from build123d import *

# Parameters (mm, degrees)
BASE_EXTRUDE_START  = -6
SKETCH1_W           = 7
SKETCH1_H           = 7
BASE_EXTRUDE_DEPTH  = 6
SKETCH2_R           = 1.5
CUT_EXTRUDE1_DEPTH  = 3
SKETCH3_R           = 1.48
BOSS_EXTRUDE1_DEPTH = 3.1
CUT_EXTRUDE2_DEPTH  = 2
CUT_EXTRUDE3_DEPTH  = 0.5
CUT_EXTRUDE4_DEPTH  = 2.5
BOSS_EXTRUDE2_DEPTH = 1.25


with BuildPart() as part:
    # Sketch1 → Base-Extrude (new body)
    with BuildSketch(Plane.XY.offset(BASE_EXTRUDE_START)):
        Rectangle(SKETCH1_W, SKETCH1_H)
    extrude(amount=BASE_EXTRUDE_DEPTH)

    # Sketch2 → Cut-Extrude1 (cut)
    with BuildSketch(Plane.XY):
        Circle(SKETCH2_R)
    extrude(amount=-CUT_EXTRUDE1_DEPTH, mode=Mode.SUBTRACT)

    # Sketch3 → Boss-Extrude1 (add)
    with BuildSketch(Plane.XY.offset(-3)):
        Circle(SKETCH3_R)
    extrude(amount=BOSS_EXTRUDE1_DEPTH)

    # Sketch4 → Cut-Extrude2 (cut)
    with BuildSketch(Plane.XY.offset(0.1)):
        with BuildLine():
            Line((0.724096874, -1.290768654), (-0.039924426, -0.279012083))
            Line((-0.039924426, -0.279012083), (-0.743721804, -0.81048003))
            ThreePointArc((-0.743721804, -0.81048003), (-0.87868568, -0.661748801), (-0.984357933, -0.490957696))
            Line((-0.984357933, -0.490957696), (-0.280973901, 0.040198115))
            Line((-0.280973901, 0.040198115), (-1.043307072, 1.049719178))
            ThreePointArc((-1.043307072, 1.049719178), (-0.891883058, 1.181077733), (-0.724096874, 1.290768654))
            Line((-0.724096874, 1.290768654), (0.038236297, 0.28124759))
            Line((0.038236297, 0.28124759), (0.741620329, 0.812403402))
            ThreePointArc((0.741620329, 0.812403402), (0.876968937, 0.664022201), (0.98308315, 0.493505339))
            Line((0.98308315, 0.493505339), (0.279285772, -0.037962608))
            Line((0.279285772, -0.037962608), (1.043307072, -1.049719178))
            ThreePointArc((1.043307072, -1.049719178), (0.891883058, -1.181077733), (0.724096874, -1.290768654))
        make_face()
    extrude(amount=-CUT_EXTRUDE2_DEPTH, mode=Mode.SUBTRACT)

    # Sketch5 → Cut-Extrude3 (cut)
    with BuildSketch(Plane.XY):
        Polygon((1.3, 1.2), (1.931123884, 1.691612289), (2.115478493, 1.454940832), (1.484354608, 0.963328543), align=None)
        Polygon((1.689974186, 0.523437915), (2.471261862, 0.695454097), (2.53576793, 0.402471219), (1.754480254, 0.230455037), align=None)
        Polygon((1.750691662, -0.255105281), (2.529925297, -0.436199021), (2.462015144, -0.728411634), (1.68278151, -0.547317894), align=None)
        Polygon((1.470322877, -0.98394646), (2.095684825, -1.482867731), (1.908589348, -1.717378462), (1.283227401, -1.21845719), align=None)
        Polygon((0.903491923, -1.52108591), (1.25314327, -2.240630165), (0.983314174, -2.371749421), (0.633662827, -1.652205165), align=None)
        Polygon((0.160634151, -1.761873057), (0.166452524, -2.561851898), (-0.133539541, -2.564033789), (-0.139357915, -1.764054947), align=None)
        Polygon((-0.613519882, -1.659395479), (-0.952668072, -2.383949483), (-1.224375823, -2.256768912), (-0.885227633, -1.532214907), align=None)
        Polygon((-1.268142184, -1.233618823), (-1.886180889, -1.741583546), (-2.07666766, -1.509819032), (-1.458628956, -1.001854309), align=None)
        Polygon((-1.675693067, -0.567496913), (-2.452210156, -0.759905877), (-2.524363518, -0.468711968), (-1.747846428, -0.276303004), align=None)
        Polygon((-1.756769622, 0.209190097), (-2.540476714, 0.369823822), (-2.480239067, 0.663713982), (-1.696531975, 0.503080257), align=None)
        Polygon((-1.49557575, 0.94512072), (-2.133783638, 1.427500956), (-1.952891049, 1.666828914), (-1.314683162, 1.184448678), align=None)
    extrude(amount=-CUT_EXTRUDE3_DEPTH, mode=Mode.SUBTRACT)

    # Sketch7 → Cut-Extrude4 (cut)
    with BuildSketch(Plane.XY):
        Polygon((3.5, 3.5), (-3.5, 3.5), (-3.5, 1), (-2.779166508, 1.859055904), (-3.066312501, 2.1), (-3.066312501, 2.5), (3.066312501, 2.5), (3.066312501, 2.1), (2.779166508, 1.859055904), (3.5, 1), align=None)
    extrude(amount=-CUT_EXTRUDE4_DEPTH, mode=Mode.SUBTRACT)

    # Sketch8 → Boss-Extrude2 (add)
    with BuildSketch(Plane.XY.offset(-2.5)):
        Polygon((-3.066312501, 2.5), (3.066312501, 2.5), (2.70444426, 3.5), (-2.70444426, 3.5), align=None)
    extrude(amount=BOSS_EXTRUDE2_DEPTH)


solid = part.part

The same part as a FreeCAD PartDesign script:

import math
import FreeCAD as App
import Part
import Sketcher
Q = App.Units.Quantity

doc = App.newDocument("Part")
body = doc.addObject("PartDesign::Body", "Body")

# Sketch on XY plane
sketch1 = body.newObject("Sketcher::SketchObject", "Sketch")
sketch1.AttachmentSupport = (doc.getObject("XY_Plane"), [""])
sketch1.MapMode = "FlatFace"
sketch1.AttachmentOffset = App.Placement(App.Vector(0, 0, -6), App.Rotation())
sketch1.addGeometry([
    Part.LineSegment(App.Vector(-4, 4, 0), App.Vector(-4, -4, 0)),
    Part.LineSegment(App.Vector(-4, -4, 0), App.Vector(4, -4, 0)),
    Part.LineSegment(App.Vector(4, -4, 0), App.Vector(4, 4, 0)),
    Part.LineSegment(App.Vector(4, 4, 0), App.Vector(-4, 4, 0)),
], False)
sketch1.addConstraint([
    Sketcher.Constraint("Coincident", 0, 2, 1, 1),
    Sketcher.Constraint("Coincident", 1, 2, 2, 1),
    Sketcher.Constraint("Coincident", 2, 2, 3, 1),
    Sketcher.Constraint("Coincident", 3, 2, 0, 1),
    Sketcher.Constraint("Vertical", 0),
    Sketcher.Constraint("Horizontal", 1),
    Sketcher.Constraint("Vertical", 2),
    Sketcher.Constraint("Horizontal", 3),
    Sketcher.Constraint("Symmetric", 0, 2, 2, 2, -1, 1),
    Sketcher.Constraint("Equal", 3, 0),
    Sketcher.Constraint("DistanceX", 1, 1, 1, 2, 7.0),
])
pad1 = body.newObject("PartDesign::Pad", "Pad")
pad1.Profile = sketch1
pad1.Length = 6

# Sketch on XY plane
sketch2 = body.newObject("Sketcher::SketchObject", "Sketch001")
sketch2.AttachmentSupport = (doc.getObject("XY_Plane"), [""])
sketch2.MapMode = "FlatFace"
sketch2.addGeometry(Part.Circle(App.Vector(0, 0, 0), App.Vector(0, 0, 1), 1.5), False)
sketch2.addConstraint([
    Sketcher.Constraint("Coincident", 0, 3, -1, 1),
    Sketcher.Constraint("Diameter", 0, 3.0),
])
pocket1 = body.newObject("PartDesign::Pocket", "Pocket")
pocket1.Profile = sketch2
pocket1.Length = 3

# Sketch on XY plane
sketch3 = body.newObject("Sketcher::SketchObject", "Sketch002")
sketch3.AttachmentSupport = (doc.getObject("XY_Plane"), [""])
sketch3.MapMode = "FlatFace"
sketch3.AttachmentOffset = App.Placement(App.Vector(0, 0, -3), App.Rotation())
sketch3.addGeometry(Part.Circle(App.Vector(0, 0, 0), App.Vector(0, 0, 1), 1.5), False)
sketch3.addConstraint([
    Sketcher.Constraint("Coincident", 0, 3, -1, 1),
    Sketcher.Constraint("Diameter", 0, 2.96),
])
pad2 = body.newObject("PartDesign::Pad", "Pad001")
pad2.Profile = sketch3
pad2.Length = 3.1

# Sketch on XY plane
sketch4 = body.newObject("Sketcher::SketchObject", "Sketch003")
sketch4.AttachmentSupport = (doc.getObject("XY_Plane"), [""])
sketch4.MapMode = "FlatFace"
sketch4.AttachmentOffset = App.Placement(App.Vector(0, 0, 0.1), App.Rotation())
sketch4.addGeometry([
    Part.LineSegment(App.Vector(-0.04, -0.28, 0), App.Vector(0.72, -1.29, 0)),  # 0
    Part.ArcOfCircle(Part.Circle(App.Vector(0, 0, 0), App.Vector(0, 0, 1), 1.48), math.radians(-60.71), math.radians(-45.18)),  # 1
    Part.LineSegment(App.Vector(1.04, -1.05, 0), App.Vector(0.28, -0.04, 0)),  # 2
    Part.LineSegment(App.Vector(0.28, -0.04, 0), App.Vector(0.98, 0.49, 0)),  # 3
    Part.ArcOfCircle(Part.Circle(App.Vector(0, 0, 0), App.Vector(0, 0, 1), 1.1), math.radians(27), math.radians(48)),  # 4
    Part.LineSegment(App.Vector(0.74, 0.81, 0), App.Vector(0.04, 0.28, 0)),  # 5
    Part.LineSegment(App.Vector(0.04, 0.28, 0), App.Vector(-0.72, 1.29, 0)),  # 6
    Part.ArcOfCircle(Part.Circle(App.Vector(0, 0, 0), App.Vector(0, 0, 1), 1.48), math.radians(119.29), math.radians(134.82)),  # 7
    Part.LineSegment(App.Vector(-1.04, 1.05, 0), App.Vector(-0.28, 0.04, 0)),  # 8
    Part.LineSegment(App.Vector(-0.28, 0.04, 0), App.Vector(-0.98, -0.49, 0)),  # 9
    Part.ArcOfCircle(Part.Circle(App.Vector(0, 0, 0), App.Vector(0, 0, 1), 1.1), math.radians(-153), math.radians(-133)),  # 10
    Part.LineSegment(App.Vector(-0.74, -0.81, 0), App.Vector(-0.04, -0.28, 0)),  # 11
], False)
sketch4.addConstraint([
    Sketcher.Constraint("Coincident", 0, 2, 1, 1),
    Sketcher.Constraint("Coincident", 1, 2, 2, 1),
    Sketcher.Constraint("Coincident", 2, 2, 3, 1),
    Sketcher.Constraint("Coincident", 3, 2, 4, 1),
    Sketcher.Constraint("Coincident", 4, 2, 5, 1),
    Sketcher.Constraint("Coincident", 5, 2, 6, 1),
    Sketcher.Constraint("Coincident", 6, 2, 7, 1),
    Sketcher.Constraint("Coincident", 7, 2, 8, 1),
    Sketcher.Constraint("Coincident", 8, 2, 9, 1),
    Sketcher.Constraint("Coincident", 9, 2, 10, 1),
    Sketcher.Constraint("Coincident", 10, 2, 11, 1),
    Sketcher.Constraint("Coincident", 11, 2, 0, 1),
    Sketcher.Constraint("Coincident", 1, 3, -1, 1),
    Sketcher.Constraint("Coincident", 4, 3, -1, 1),
    Sketcher.Constraint("Coincident", 7, 3, -1, 1),
    Sketcher.Constraint("Coincident", 10, 3, -1, 1),
    Sketcher.Constraint("Equal", 1, 7),
    Sketcher.Constraint("Equal", 4, 10),
    Sketcher.Constraint("Parallel", 0, 2),
    Sketcher.Constraint("Perpendicular", 2, 3),
    Sketcher.Constraint("Parallel", 3, 5),
    Sketcher.Constraint("Perpendicular", 5, 6),
    Sketcher.Constraint("Parallel", 6, 8),
    Sketcher.Constraint("Perpendicular", 8, 9),
    Sketcher.Constraint("Parallel", 9, 11),
    Sketcher.Constraint("Equal", 0, 2),
    Sketcher.Constraint("Equal", 6, 8),
    Sketcher.Constraint("Equal", 5, 9),
    Sketcher.Constraint("Equal", 3, 11),
    Sketcher.Constraint("Radius", 4, 1.1),
    Sketcher.Constraint("Radius", 1, 1.48),
    Sketcher.Constraint("DistanceY", -1, 1, 8, 2, 0.040198),
    Sketcher.Constraint("DistanceY", 3, 2, 4, 2, 0.318898),
    Sketcher.Constraint("DistanceY", 0, 2, -1, 1, 1.290769),
    Sketcher.Constraint("DistanceY", 1, 2, -1, 1, 1.049719),
    Sketcher.Constraint("DistanceX", -1, 1, 4, 2, 0.74162),
])
pocket2 = body.newObject("PartDesign::Pocket", "Pocket001")
pocket2.Profile = sketch4
pocket2.Length = 2

# Sketch on XY plane
sketch5 = body.newObject("Sketcher::SketchObject", "Sketch004")
sketch5.AttachmentSupport = (doc.getObject("XY_Plane"), [""])
sketch5.MapMode = "FlatFace"
sketch5.addGeometry([
    Part.LineSegment(App.Vector(1.93, 1.69, 0), App.Vector(1.3, 1.2, 0)),  # 0
    Part.LineSegment(App.Vector(1.3, 1.2, 0), App.Vector(1.48, 0.96, 0)),  # 1
    Part.LineSegment(App.Vector(1.48, 0.96, 0), App.Vector(2.12, 1.45, 0)),  # 2
    Part.LineSegment(App.Vector(2.12, 1.45, 0), App.Vector(1.93, 1.69, 0)),  # 3
    Part.LineSegment(App.Vector(2.47, 0.7, 0), App.Vector(1.69, 0.52, 0)),  # 4
    Part.LineSegment(App.Vector(1.69, 0.52, 0), App.Vector(1.75, 0.23, 0)),  # 5
    Part.LineSegment(App.Vector(1.75, 0.23, 0), App.Vector(2.54, 0.4, 0)),  # 6
    Part.LineSegment(App.Vector(2.54, 0.4, 0), App.Vector(2.47, 0.7, 0)),  # 7
    Part.LineSegment(App.Vector(2.53, -0.44, 0), App.Vector(1.75, -0.26, 0)),  # 8
    Part.LineSegment(App.Vector(1.75, -0.26, 0), App.Vector(1.68, -0.55, 0)),  # 9
    Part.LineSegment(App.Vector(1.68, -0.55, 0), App.Vector(2.46, -0.73, 0)),  # 10
    Part.LineSegment(App.Vector(2.46, -0.73, 0), App.Vector(2.53, -0.44, 0)),  # 11
    Part.LineSegment(App.Vector(2.1, -1.48, 0), App.Vector(1.47, -0.98, 0)),  # 12
    Part.LineSegment(App.Vector(1.47, -0.98, 0), App.Vector(1.28, -1.22, 0)),  # 13
    Part.LineSegment(App.Vector(1.28, -1.22, 0), App.Vector(1.91, -1.72, 0)),  # 14
    Part.LineSegment(App.Vector(1.91, -1.72, 0), App.Vector(2.1, -1.48, 0)),  # 15
    Part.LineSegment(App.Vector(1.25, -2.24, 0), App.Vector(0.9, -1.52, 0)),  # 16
    Part.LineSegment(App.Vector(0.9, -1.52, 0), App.Vector(0.63, -1.65, 0)),  # 17
    Part.LineSegment(App.Vector(0.63, -1.65, 0), App.Vector(0.98, -2.37, 0)),  # 18
    Part.LineSegment(App.Vector(0.98, -2.37, 0), App.Vector(1.25, -2.24, 0)),  # 19
    Part.LineSegment(App.Vector(0.17, -2.56, 0), App.Vector(0.16, -1.76, 0)),  # 20
    Part.LineSegment(App.Vector(0.16, -1.76, 0), App.Vector(-0.14, -1.76, 0)),  # 21
    Part.LineSegment(App.Vector(-0.14, -1.76, 0), App.Vector(-0.13, -2.56, 0)),  # 22
    Part.LineSegment(App.Vector(-0.13, -2.56, 0), App.Vector(0.17, -2.56, 0)),  # 23
    Part.LineSegment(App.Vector(-0.95, -2.38, 0), App.Vector(-0.61, -1.66, 0)),  # 24
    Part.LineSegment(App.Vector(-0.61, -1.66, 0), App.Vector(-0.89, -1.53, 0)),  # 25
    Part.LineSegment(App.Vector(-0.89, -1.53, 0), App.Vector(-1.22, -2.26, 0)),  # 26
    Part.LineSegment(App.Vector(-1.22, -2.26, 0), App.Vector(-0.95, -2.38, 0)),  # 27
    Part.LineSegment(App.Vector(-1.89, -1.74, 0), App.Vector(-1.27, -1.23, 0)),  # 28
    Part.LineSegment(App.Vector(-1.27, -1.23, 0), App.Vector(-1.46, -1, 0)),  # 29
    Part.LineSegment(App.Vector(-1.46, -1, 0), App.Vector(-2.08, -1.51, 0)),  # 30
    Part.LineSegment(App.Vector(-2.08, -1.51, 0), App.Vector(-1.89, -1.74, 0)),  # 31
    Part.LineSegment(App.Vector(-2.45, -0.76, 0), App.Vector(-1.68, -0.57, 0)),  # 32
    Part.LineSegment(App.Vector(-1.68, -0.57, 0), App.Vector(-1.75, -0.28, 0)),  # 33
    Part.LineSegment(App.Vector(-1.75, -0.28, 0), App.Vector(-2.52, -0.47, 0)),  # 34
    Part.LineSegment(App.Vector(-2.52, -0.47, 0), App.Vector(-2.45, -0.76, 0)),  # 35
    Part.LineSegment(App.Vector(-2.54, 0.37, 0), App.Vector(-1.76, 0.21, 0)),  # 36
    Part.LineSegment(App.Vector(-1.76, 0.21, 0), App.Vector(-1.7, 0.5, 0)),  # 37
    Part.LineSegment(App.Vector(-1.7, 0.5, 0), App.Vector(-2.48, 0.66, 0)),  # 38
    Part.LineSegment(App.Vector(-2.48, 0.66, 0), App.Vector(-2.54, 0.37, 0)),  # 39
    Part.LineSegment(App.Vector(-2.13, 1.43, 0), App.Vector(-1.5, 0.95, 0)),  # 40
    Part.LineSegment(App.Vector(-1.5, 0.95, 0), App.Vector(-1.31, 1.18, 0)),  # 41
    Part.LineSegment(App.Vector(-1.31, 1.18, 0), App.Vector(-1.95, 1.67, 0)),  # 42
    Part.LineSegment(App.Vector(-1.95, 1.67, 0), App.Vector(-2.13, 1.43, 0)),  # 43
], False)
sketch5.addConstraint([
    Sketcher.Constraint("Coincident", 0, 2, 1, 1),
    Sketcher.Constraint("Coincident", 1, 2, 2, 1),
    Sketcher.Constraint("Coincident", 2, 2, 3, 1),
    Sketcher.Constraint("Coincident", 3, 2, 0, 1),
    Sketcher.Constraint("Coincident", 4, 2, 5, 1),
    Sketcher.Constraint("Coincident", 5, 2, 6, 1),
    Sketcher.Constraint("Coincident", 6, 2, 7, 1),
    Sketcher.Constraint("Coincident", 7, 2, 4, 1),
    Sketcher.Constraint("Coincident", 8, 2, 9, 1),
    Sketcher.Constraint("Coincident", 9, 2, 10, 1),
    Sketcher.Constraint("Coincident", 10, 2, 11, 1),
    Sketcher.Constraint("Coincident", 11, 2, 8, 1),
    Sketcher.Constraint("Coincident", 12, 2, 13, 1),
    Sketcher.Constraint("Coincident", 13, 2, 14, 1),
    Sketcher.Constraint("Coincident", 14, 2, 15, 1),
    Sketcher.Constraint("Coincident", 15, 2, 12, 1),
    Sketcher.Constraint("Coincident", 16, 2, 17, 1),
    Sketcher.Constraint("Coincident", 17, 2, 18, 1),
    Sketcher.Constraint("Coincident", 18, 2, 19, 1),
    Sketcher.Constraint("Coincident", 19, 2, 16, 1),
    Sketcher.Constraint("Coincident", 20, 2, 21, 1),
    Sketcher.Constraint("Coincident", 21, 2, 22, 1),
    Sketcher.Constraint("Coincident", 22, 2, 23, 1),
    Sketcher.Constraint("Coincident", 23, 2, 20, 1),
    Sketcher.Constraint("Coincident", 24, 2, 25, 1),
    Sketcher.Constraint("Coincident", 25, 2, 26, 1),
    Sketcher.Constraint("Coincident", 26, 2, 27, 1),
    Sketcher.Constraint("Coincident", 27, 2, 24, 1),
    Sketcher.Constraint("Coincident", 28, 2, 29, 1),
    Sketcher.Constraint("Coincident", 29, 2, 30, 1),
    Sketcher.Constraint("Coincident", 30, 2, 31, 1),
    Sketcher.Constraint("Coincident", 31, 2, 28, 1),
    Sketcher.Constraint("Coincident", 32, 2, 33, 1),
    Sketcher.Constraint("Coincident", 33, 2, 34, 1),
    Sketcher.Constraint("Coincident", 34, 2, 35, 1),
    Sketcher.Constraint("Coincident", 35, 2, 32, 1),
    Sketcher.Constraint("Coincident", 36, 2, 37, 1),
    Sketcher.Constraint("Coincident", 37, 2, 38, 1),
    Sketcher.Constraint("Coincident", 38, 2, 39, 1),
    Sketcher.Constraint("Coincident", 39, 2, 36, 1),
    Sketcher.Constraint("Coincident", 40, 2, 41, 1),
    Sketcher.Constraint("Coincident", 41, 2, 42, 1),
    Sketcher.Constraint("Coincident", 42, 2, 43, 1),
    Sketcher.Constraint("Coincident", 43, 2, 40, 1),
    Sketcher.Constraint("Perpendicular", 0, 1),
    Sketcher.Constraint("Perpendicular", 1, 2),
    Sketcher.Constraint("Perpendicular", 2, 3),
    Sketcher.Constraint("Perpendicular", 4, 5),
    Sketcher.Constraint("Perpendicular", 5, 6),
    Sketcher.Constraint("Perpendicular", 6, 7),
    Sketcher.Constraint("Perpendicular", 8, 9),
    Sketcher.Constraint("Perpendicular", 9, 10),
    Sketcher.Constraint("Perpendicular", 10, 11),
    Sketcher.Constraint("Perpendicular", 12, 13),
    Sketcher.Constraint("Perpendicular", 13, 14),
    Sketcher.Constraint("Perpendicular", 14, 15),
    Sketcher.Constraint("Perpendicular", 16, 17),
    Sketcher.Constraint("Perpendicular", 17, 18),
    Sketcher.Constraint("Perpendicular", 18, 19),
    Sketcher.Constraint("Perpendicular", 20, 21),
    Sketcher.Constraint("Perpendicular", 21, 22),
    Sketcher.Constraint("Perpendicular", 22, 23),
    Sketcher.Constraint("Perpendicular", 24, 25),
    Sketcher.Constraint("Perpendicular", 25, 26),
    Sketcher.Constraint("Perpendicular", 26, 27),
    Sketcher.Constraint("Perpendicular", 28, 29),
    Sketcher.Constraint("Perpendicular", 29, 30),
    Sketcher.Constraint("Perpendicular", 30, 31),
    Sketcher.Constraint("Perpendicular", 32, 33),
    Sketcher.Constraint("Perpendicular", 33, 34),
    Sketcher.Constraint("Perpendicular", 34, 35),
    Sketcher.Constraint("Perpendicular", 36, 37),
    Sketcher.Constraint("Perpendicular", 37, 38),
    Sketcher.Constraint("Perpendicular", 38, 39),
    Sketcher.Constraint("Perpendicular", 40, 41),
    Sketcher.Constraint("Perpendicular", 41, 42),
    Sketcher.Constraint("Perpendicular", 42, 43),
    Sketcher.Constraint("Equal", 2, 4),
    Sketcher.Constraint("Equal", 3, 5),
    Sketcher.Constraint("Equal", 6, 8),
    Sketcher.Constraint("Equal", 7, 9),
    Sketcher.Constraint("Equal", 10, 12),
    Sketcher.Constraint("Equal", 11, 13),
    Sketcher.Constraint("Equal", 14, 16),
    Sketcher.Constraint("Equal", 15, 17),
    Sketcher.Constraint("Equal", 18, 20),
    Sketcher.Constraint("Equal", 19, 21),
    Sketcher.Constraint("Equal", 22, 24),
    Sketcher.Constraint("Equal", 23, 25),
    Sketcher.Constraint("Equal", 26, 28),
    Sketcher.Constraint("Equal", 27, 29),
    Sketcher.Constraint("Equal", 30, 32),
    Sketcher.Constraint("Equal", 31, 33),
    Sketcher.Constraint("Equal", 34, 36),
    Sketcher.Constraint("Equal", 35, 37),
    Sketcher.Constraint("Equal", 38, 40),
    Sketcher.Constraint("Equal", 39, 41),
    Sketcher.Constraint("Distance", 0, 0.8),
    Sketcher.Constraint("Distance", 1, 0.3),
    Sketcher.Constraint("DistanceX", -1, 1, 0, 2, 1.3),
    Sketcher.Constraint("DistanceY", -1, 1, 0, 2, 1.2),
    Sketcher.Constraint("DistanceX", 5, 2, 2, 2, 0.360998),
    Sketcher.Constraint("DistanceY", 5, 2, 7, 2, 0.464999),
    Sketcher.Constraint("DistanceX", 30, 2, 27, 2, 1.124),
    Sketcher.Constraint("DistanceY", 11, 2, -1, 1, 0.436199),
    Sketcher.Constraint("DistanceY", -1, 1, 43, 2, 1.427501),
    Sketcher.Constraint("DistanceX", 9, 2, 5, 2, 0.071699),
    Sketcher.Constraint("DistanceY", 12, 2, 5, 2, 1.214401),
    Sketcher.Constraint("DistanceX", 21, 2, 19, 2, 1.392501),
    Sketcher.Constraint("DistanceX", 29, 2, 25, 2, 0.573401),
    Sketcher.Constraint("DistanceY", 30, 2, 28, 2, 0.2762),
    Sketcher.Constraint("DistanceX", 39, 2, 40, 2, 1.044901),
    Sketcher.Constraint("DistanceX", 43, 2, 41, 2, 0.8191),
    Sketcher.Constraint("DistanceY", -1, 1, 1, 2, 0.963329),
    Sketcher.Constraint("DistanceY", -1, 1, 6, 2, 0.402471),
    Sketcher.Constraint("DistanceX", -1, 1, 8, 2, 1.750692),
    Sketcher.Constraint("DistanceX", -1, 1, 14, 2, 1.908589),
    Sketcher.Constraint("DistanceY", 14, 2, -1, 1, 1.717378),
    Sketcher.Constraint("DistanceX", -1, 1, 16, 2, 0.903492),
    Sketcher.Constraint("DistanceY", 18, 2, -1, 1, 2.371749),
    Sketcher.Constraint("DistanceY", 19, 2, -1, 1, 2.24063),
    Sketcher.Constraint("DistanceX", 22, 2, -1, 1, 0.13354),
    Sketcher.Constraint("DistanceY", 23, 2, -1, 1, 2.561852),
    Sketcher.Constraint("DistanceX", 24, 2, -1, 1, 0.61352),
    Sketcher.Constraint("DistanceY", 26, 2, -1, 1, 2.256769),
    Sketcher.Constraint("DistanceY", 28, 2, -1, 1, 1.233619),
    Sketcher.Constraint("DistanceY", 34, 2, -1, 1, 0.468712),
    Sketcher.Constraint("DistanceX", 35, 2, -1, 1, 2.45221),
    Sketcher.Constraint("DistanceX", 36, 2, -1, 1, 1.75677),
    Sketcher.Constraint("DistanceY", -1, 1, 36, 2, 0.20919),
    Sketcher.Constraint("DistanceX", 37, 2, -1, 1, 1.696532),
    Sketcher.Constraint("DistanceX", 32, 2, 28, 2, 0.407551),
])
pocket3 = body.newObject("PartDesign::Pocket", "Pocket002")
pocket3.Profile = sketch5
pocket3.Length = 0.5

# Sketch on XY plane
sketch6 = body.newObject("Sketcher::SketchObject", "Sketch005")
sketch6.AttachmentSupport = (doc.getObject("XY_Plane"), [""])
sketch6.MapMode = "FlatFace"
sketch6.addGeometry([
    Part.LineSegment(App.Vector(3.5, 3.5, 0), App.Vector(-3.5, 3.5, 0)),  # 0
    Part.LineSegment(App.Vector(-3.5, 3.5, 0), App.Vector(-3.5, 1, 0)),  # 1
    Part.LineSegment(App.Vector(-3.5, 1, 0), App.Vector(-2.78, 1.86, 0)),  # 2
    Part.LineSegment(App.Vector(-2.78, 1.86, 0), App.Vector(-3.07, 2.1, 0)),  # 3
    Part.LineSegment(App.Vector(-3.07, 2.1, 0), App.Vector(-3.07, 2.5, 0)),  # 4
    Part.LineSegment(App.Vector(-3.07, 2.5, 0), App.Vector(3.07, 2.5, 0)),  # 5
    Part.LineSegment(App.Vector(3.07, 2.5, 0), App.Vector(3.07, 2.1, 0)),  # 6
    Part.LineSegment(App.Vector(3.07, 2.1, 0), App.Vector(2.78, 1.86, 0)),  # 7
    Part.LineSegment(App.Vector(2.78, 1.86, 0), App.Vector(3.5, 1, 0)),  # 8
    Part.LineSegment(App.Vector(3.5, 1, 0), App.Vector(3.5, 3.5, 0)),  # 9
], False)
sketch6.addConstraint([
    Sketcher.Constraint("Coincident", 0, 2, 1, 1),
    Sketcher.Constraint("Coincident", 1, 2, 2, 1),
    Sketcher.Constraint("Coincident", 2, 2, 3, 1),
    Sketcher.Constraint("Coincident", 3, 2, 4, 1),
    Sketcher.Constraint("Coincident", 4, 2, 5, 1),
    Sketcher.Constraint("Coincident", 5, 2, 6, 1),
    Sketcher.Constraint("Coincident", 6, 2, 7, 1),
    Sketcher.Constraint("Coincident", 7, 2, 8, 1),
    Sketcher.Constraint("Coincident", 8, 2, 9, 1),
    Sketcher.Constraint("Coincident", 9, 2, 0, 1),
    Sketcher.Constraint("Horizontal", 0),
    Sketcher.Constraint("Vertical", 1),
    Sketcher.Constraint("Vertical", 4),
    Sketcher.Constraint("Horizontal", 5),
    Sketcher.Constraint("Vertical", 6),
    Sketcher.Constraint("Vertical", 9),
    Sketcher.Constraint("Symmetric", 3, 2, 6, 2, -2),
    Sketcher.Constraint("Symmetric", 2, 2, 7, 2, -2),
    Sketcher.Constraint("Symmetric", 1, 2, 8, 2, -2),
    Sketcher.Constraint("Perpendicular", 2, 3),
    Sketcher.Constraint("DistanceX", 0, 2, 0, 1, 7.0),
    Sketcher.Constraint("Angle", 2, Q("50 deg")),
    Sketcher.Constraint("DistanceY", 1, 2, 1, 1, 2.5),
    Sketcher.Constraint("DistanceY", 4, 1, 4, 2, 0.4),
    Sketcher.Constraint("DistanceY", -1, 1, 1, 2, 1.0),
    Sketcher.Constraint("DistanceY", 4, 2, 0, 2, 1.0),
    Sketcher.Constraint("DistanceX", 5, 1, 5, 2, 6.132625),
])
pocket4 = body.newObject("PartDesign::Pocket", "Pocket003")
pocket4.Profile = sketch6
pocket4.Length = 2.5

# Sketch on XY plane
sketch7 = body.newObject("Sketcher::SketchObject", "Sketch006")
sketch7.AttachmentSupport = (doc.getObject("XY_Plane"), [""])
sketch7.MapMode = "FlatFace"
sketch7.AttachmentOffset = App.Placement(App.Vector(0, 0, -2.5), App.Rotation())
sketch7.addGeometry([
    Part.LineSegment(App.Vector(-3.1, 2.5, 0), App.Vector(3.1, 2.5, 0)),
    Part.LineSegment(App.Vector(3.1, 2.5, 0), App.Vector(2.7, 3.5, 0)),
    Part.LineSegment(App.Vector(2.7, 3.5, 0), App.Vector(-2.7, 3.5, 0)),
    Part.LineSegment(App.Vector(-2.7, 3.5, 0), App.Vector(-3.1, 2.5, 0)),
], False)
sketch7.addConstraint([
    Sketcher.Constraint("Coincident", 0, 2, 1, 1),
    Sketcher.Constraint("Coincident", 1, 2, 2, 1),
    Sketcher.Constraint("Coincident", 2, 2, 3, 1),
    Sketcher.Constraint("Coincident", 3, 2, 0, 1),
    Sketcher.Constraint("Horizontal", 0),
    Sketcher.Constraint("Horizontal", 2),
    Sketcher.Constraint("Equal", 1, 3),
    Sketcher.Constraint("DistanceY", 0, 2, 1, 2, 1.0),
    Sketcher.Constraint("DistanceY", -1, 1, 0, 2, 2.5),
    Sketcher.Constraint("DistanceX", 2, 2, 2, 1, 5.408889),
    Sketcher.Constraint("Distance", 1, 1.063461),
    Sketcher.Constraint("DistanceX", -1, 1, 0, 2, 3.066313),
])
pad3 = body.newObject("PartDesign::Pad", "Pad002")
pad3.Profile = sketch7
pad3.Length = 1.25

doc.recompute()
